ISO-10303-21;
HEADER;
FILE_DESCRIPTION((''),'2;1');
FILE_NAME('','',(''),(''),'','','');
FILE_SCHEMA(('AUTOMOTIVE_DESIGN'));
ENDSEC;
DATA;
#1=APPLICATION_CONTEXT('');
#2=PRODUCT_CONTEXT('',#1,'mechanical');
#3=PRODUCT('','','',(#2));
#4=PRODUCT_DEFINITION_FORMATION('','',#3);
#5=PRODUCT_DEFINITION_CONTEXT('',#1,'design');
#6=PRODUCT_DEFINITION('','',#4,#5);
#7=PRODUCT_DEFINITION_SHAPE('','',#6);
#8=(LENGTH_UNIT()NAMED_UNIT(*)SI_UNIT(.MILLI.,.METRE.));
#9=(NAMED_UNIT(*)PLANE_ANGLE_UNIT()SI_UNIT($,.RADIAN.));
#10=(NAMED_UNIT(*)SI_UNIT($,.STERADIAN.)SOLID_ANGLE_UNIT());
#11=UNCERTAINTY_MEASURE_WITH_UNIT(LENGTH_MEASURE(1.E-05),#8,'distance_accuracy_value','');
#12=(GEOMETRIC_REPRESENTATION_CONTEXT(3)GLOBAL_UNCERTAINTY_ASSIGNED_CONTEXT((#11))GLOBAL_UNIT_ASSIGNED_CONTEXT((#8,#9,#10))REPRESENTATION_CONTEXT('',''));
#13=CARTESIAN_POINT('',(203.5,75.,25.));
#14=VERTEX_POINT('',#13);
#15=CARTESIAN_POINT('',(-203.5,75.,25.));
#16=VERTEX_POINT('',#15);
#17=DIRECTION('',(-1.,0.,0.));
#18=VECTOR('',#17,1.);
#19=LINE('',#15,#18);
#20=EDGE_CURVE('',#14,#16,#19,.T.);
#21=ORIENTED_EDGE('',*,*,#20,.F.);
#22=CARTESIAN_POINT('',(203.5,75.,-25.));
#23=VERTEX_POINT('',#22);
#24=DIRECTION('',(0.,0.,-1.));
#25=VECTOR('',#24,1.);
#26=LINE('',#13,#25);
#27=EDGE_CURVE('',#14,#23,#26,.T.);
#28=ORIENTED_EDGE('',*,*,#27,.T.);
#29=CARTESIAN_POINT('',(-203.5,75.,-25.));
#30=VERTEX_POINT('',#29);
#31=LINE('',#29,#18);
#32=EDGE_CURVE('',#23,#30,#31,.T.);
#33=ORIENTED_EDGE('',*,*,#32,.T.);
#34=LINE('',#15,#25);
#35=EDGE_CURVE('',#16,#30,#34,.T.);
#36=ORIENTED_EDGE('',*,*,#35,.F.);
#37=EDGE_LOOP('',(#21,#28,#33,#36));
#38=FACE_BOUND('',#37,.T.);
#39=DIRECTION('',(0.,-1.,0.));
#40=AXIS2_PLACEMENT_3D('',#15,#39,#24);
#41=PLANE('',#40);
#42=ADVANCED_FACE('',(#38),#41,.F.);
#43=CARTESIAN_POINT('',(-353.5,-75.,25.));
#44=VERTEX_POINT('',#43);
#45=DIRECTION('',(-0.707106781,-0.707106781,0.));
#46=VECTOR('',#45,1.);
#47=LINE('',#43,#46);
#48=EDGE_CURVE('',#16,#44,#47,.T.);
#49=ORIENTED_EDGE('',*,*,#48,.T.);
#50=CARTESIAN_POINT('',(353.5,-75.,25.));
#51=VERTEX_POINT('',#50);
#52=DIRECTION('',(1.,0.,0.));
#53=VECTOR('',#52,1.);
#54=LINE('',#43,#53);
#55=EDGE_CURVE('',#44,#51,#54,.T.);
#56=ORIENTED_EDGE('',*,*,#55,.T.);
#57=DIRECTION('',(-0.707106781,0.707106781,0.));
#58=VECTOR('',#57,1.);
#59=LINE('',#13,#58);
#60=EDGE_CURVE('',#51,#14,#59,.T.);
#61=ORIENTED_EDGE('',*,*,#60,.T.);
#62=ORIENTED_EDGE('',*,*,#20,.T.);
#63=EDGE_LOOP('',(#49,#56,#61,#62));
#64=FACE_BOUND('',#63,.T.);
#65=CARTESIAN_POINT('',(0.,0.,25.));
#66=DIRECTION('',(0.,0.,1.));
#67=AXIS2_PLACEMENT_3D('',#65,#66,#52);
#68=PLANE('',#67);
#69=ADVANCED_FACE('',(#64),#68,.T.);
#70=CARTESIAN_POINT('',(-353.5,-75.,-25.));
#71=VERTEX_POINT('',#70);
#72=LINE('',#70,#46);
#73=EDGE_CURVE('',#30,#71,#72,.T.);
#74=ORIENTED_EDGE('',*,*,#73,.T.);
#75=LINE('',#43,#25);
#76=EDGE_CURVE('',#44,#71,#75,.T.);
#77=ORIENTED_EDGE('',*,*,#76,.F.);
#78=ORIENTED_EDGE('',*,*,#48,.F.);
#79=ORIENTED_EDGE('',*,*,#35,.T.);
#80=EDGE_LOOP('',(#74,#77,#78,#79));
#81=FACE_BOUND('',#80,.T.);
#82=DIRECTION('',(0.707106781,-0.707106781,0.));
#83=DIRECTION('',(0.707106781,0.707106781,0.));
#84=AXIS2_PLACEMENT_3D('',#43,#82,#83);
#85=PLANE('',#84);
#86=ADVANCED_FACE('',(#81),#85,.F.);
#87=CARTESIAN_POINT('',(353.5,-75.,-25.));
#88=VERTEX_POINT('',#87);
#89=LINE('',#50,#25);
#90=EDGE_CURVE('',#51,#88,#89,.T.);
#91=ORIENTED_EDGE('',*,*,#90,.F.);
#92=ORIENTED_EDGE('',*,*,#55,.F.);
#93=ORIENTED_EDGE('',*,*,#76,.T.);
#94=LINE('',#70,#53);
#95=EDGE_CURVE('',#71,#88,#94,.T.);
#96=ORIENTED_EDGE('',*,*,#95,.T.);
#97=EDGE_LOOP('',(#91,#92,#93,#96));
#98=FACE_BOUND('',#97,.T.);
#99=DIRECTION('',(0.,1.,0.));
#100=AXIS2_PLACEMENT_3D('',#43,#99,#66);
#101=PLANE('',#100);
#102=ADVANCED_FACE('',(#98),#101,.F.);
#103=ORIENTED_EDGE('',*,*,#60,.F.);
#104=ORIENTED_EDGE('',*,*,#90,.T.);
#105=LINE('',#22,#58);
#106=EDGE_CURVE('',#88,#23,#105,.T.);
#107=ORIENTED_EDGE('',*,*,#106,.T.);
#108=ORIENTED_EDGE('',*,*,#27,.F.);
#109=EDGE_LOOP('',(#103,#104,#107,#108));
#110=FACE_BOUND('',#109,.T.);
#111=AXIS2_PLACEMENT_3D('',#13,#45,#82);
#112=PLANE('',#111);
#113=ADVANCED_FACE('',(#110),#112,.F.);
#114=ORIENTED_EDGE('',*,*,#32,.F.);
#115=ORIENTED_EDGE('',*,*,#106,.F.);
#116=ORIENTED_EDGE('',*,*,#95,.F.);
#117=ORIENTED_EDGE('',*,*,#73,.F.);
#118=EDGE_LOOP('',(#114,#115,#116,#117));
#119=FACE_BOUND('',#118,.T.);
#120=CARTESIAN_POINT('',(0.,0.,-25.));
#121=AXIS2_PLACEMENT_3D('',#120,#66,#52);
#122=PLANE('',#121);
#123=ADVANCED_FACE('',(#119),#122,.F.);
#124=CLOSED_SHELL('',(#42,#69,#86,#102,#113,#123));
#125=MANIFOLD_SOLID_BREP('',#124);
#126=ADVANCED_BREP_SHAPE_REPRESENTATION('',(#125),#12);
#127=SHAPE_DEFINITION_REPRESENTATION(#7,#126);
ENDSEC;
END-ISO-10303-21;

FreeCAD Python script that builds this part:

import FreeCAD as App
import Part
import Sketcher

V = App.Vector
Q = App.Units.Quantity


def add_polygon(sketch, points):
    """Adds a closed chain of lines whose ends are joined by coincident constraints."""
    first, n = sketch.GeometryCount, len(points)
    for a, b in zip(points, points[1:] + points[:1]):
        sketch.addGeometry(Part.LineSegment(App.Vector(*a, 0), App.Vector(*b, 0)), False)
    for i in range(n):
        sketch.addConstraint(Sketcher.Constraint("Coincident", first + i, 2, first + (i + 1) % n, 1))

doc = App.newDocument("Part")
params = doc.addObject("Spreadsheet::Sheet", "Params")
for row, (alias, value) in enumerate([
    ("sketch1_width", "707 mm"),
    ("sketch1_width2", "407 mm"),
    ("pad1_length", "50 mm"),
], start=1):
    params.set(f"A{row}", alias)
    params.set(f"B{row}", "=" + value)
    params.setAlias(f"B{row}", alias)

body = doc.addObject("PartDesign::Body", "Body")

sketch1 = doc.addObject("Sketcher::SketchObject", "Sketch")
body.addObject(sketch1)
sketch1.AttachmentSupport = (doc.XY_Plane, [""])
sketch1.MapMode = "FlatFace"
add_polygon(sketch1, [(-203.5, 75), (-353.5, -75), (353.5, -75), (203.5, 75)])
sketch1.addConstraint([
    Sketcher.Constraint("Horizontal", 1),
    Sketcher.Constraint("Horizontal", 3),
    Sketcher.Constraint("Perpendicular", 0, 2),
    Sketcher.Constraint("Equal", 0, 2),
    Sketcher.Constraint("DistanceX", 1, 1, 1, 2, Q("707 mm")),
    Sketcher.Constraint("DistanceX", 3, 2, 3, 1, Q("407 mm")),
    Sketcher.Constraint("DistanceY", 0, 2, -1, 1, Q("75 mm")),
    Sketcher.Constraint("DistanceX", 0, 2, -1, 1, Q("353.5 mm")),
])
sketch1.setExpression("Constraints[8]", "Params.sketch1_width")
sketch1.setExpression("Constraints[9]", "Params.sketch1_width2")
pad1 = doc.addObject("PartDesign::Pad", "Pad")
body.addObject(pad1)
pad1.Profile = sketch1
pad1.setExpression("Length", "Params.pad1_length")
pad1.Midplane = True

doc.recompute()
